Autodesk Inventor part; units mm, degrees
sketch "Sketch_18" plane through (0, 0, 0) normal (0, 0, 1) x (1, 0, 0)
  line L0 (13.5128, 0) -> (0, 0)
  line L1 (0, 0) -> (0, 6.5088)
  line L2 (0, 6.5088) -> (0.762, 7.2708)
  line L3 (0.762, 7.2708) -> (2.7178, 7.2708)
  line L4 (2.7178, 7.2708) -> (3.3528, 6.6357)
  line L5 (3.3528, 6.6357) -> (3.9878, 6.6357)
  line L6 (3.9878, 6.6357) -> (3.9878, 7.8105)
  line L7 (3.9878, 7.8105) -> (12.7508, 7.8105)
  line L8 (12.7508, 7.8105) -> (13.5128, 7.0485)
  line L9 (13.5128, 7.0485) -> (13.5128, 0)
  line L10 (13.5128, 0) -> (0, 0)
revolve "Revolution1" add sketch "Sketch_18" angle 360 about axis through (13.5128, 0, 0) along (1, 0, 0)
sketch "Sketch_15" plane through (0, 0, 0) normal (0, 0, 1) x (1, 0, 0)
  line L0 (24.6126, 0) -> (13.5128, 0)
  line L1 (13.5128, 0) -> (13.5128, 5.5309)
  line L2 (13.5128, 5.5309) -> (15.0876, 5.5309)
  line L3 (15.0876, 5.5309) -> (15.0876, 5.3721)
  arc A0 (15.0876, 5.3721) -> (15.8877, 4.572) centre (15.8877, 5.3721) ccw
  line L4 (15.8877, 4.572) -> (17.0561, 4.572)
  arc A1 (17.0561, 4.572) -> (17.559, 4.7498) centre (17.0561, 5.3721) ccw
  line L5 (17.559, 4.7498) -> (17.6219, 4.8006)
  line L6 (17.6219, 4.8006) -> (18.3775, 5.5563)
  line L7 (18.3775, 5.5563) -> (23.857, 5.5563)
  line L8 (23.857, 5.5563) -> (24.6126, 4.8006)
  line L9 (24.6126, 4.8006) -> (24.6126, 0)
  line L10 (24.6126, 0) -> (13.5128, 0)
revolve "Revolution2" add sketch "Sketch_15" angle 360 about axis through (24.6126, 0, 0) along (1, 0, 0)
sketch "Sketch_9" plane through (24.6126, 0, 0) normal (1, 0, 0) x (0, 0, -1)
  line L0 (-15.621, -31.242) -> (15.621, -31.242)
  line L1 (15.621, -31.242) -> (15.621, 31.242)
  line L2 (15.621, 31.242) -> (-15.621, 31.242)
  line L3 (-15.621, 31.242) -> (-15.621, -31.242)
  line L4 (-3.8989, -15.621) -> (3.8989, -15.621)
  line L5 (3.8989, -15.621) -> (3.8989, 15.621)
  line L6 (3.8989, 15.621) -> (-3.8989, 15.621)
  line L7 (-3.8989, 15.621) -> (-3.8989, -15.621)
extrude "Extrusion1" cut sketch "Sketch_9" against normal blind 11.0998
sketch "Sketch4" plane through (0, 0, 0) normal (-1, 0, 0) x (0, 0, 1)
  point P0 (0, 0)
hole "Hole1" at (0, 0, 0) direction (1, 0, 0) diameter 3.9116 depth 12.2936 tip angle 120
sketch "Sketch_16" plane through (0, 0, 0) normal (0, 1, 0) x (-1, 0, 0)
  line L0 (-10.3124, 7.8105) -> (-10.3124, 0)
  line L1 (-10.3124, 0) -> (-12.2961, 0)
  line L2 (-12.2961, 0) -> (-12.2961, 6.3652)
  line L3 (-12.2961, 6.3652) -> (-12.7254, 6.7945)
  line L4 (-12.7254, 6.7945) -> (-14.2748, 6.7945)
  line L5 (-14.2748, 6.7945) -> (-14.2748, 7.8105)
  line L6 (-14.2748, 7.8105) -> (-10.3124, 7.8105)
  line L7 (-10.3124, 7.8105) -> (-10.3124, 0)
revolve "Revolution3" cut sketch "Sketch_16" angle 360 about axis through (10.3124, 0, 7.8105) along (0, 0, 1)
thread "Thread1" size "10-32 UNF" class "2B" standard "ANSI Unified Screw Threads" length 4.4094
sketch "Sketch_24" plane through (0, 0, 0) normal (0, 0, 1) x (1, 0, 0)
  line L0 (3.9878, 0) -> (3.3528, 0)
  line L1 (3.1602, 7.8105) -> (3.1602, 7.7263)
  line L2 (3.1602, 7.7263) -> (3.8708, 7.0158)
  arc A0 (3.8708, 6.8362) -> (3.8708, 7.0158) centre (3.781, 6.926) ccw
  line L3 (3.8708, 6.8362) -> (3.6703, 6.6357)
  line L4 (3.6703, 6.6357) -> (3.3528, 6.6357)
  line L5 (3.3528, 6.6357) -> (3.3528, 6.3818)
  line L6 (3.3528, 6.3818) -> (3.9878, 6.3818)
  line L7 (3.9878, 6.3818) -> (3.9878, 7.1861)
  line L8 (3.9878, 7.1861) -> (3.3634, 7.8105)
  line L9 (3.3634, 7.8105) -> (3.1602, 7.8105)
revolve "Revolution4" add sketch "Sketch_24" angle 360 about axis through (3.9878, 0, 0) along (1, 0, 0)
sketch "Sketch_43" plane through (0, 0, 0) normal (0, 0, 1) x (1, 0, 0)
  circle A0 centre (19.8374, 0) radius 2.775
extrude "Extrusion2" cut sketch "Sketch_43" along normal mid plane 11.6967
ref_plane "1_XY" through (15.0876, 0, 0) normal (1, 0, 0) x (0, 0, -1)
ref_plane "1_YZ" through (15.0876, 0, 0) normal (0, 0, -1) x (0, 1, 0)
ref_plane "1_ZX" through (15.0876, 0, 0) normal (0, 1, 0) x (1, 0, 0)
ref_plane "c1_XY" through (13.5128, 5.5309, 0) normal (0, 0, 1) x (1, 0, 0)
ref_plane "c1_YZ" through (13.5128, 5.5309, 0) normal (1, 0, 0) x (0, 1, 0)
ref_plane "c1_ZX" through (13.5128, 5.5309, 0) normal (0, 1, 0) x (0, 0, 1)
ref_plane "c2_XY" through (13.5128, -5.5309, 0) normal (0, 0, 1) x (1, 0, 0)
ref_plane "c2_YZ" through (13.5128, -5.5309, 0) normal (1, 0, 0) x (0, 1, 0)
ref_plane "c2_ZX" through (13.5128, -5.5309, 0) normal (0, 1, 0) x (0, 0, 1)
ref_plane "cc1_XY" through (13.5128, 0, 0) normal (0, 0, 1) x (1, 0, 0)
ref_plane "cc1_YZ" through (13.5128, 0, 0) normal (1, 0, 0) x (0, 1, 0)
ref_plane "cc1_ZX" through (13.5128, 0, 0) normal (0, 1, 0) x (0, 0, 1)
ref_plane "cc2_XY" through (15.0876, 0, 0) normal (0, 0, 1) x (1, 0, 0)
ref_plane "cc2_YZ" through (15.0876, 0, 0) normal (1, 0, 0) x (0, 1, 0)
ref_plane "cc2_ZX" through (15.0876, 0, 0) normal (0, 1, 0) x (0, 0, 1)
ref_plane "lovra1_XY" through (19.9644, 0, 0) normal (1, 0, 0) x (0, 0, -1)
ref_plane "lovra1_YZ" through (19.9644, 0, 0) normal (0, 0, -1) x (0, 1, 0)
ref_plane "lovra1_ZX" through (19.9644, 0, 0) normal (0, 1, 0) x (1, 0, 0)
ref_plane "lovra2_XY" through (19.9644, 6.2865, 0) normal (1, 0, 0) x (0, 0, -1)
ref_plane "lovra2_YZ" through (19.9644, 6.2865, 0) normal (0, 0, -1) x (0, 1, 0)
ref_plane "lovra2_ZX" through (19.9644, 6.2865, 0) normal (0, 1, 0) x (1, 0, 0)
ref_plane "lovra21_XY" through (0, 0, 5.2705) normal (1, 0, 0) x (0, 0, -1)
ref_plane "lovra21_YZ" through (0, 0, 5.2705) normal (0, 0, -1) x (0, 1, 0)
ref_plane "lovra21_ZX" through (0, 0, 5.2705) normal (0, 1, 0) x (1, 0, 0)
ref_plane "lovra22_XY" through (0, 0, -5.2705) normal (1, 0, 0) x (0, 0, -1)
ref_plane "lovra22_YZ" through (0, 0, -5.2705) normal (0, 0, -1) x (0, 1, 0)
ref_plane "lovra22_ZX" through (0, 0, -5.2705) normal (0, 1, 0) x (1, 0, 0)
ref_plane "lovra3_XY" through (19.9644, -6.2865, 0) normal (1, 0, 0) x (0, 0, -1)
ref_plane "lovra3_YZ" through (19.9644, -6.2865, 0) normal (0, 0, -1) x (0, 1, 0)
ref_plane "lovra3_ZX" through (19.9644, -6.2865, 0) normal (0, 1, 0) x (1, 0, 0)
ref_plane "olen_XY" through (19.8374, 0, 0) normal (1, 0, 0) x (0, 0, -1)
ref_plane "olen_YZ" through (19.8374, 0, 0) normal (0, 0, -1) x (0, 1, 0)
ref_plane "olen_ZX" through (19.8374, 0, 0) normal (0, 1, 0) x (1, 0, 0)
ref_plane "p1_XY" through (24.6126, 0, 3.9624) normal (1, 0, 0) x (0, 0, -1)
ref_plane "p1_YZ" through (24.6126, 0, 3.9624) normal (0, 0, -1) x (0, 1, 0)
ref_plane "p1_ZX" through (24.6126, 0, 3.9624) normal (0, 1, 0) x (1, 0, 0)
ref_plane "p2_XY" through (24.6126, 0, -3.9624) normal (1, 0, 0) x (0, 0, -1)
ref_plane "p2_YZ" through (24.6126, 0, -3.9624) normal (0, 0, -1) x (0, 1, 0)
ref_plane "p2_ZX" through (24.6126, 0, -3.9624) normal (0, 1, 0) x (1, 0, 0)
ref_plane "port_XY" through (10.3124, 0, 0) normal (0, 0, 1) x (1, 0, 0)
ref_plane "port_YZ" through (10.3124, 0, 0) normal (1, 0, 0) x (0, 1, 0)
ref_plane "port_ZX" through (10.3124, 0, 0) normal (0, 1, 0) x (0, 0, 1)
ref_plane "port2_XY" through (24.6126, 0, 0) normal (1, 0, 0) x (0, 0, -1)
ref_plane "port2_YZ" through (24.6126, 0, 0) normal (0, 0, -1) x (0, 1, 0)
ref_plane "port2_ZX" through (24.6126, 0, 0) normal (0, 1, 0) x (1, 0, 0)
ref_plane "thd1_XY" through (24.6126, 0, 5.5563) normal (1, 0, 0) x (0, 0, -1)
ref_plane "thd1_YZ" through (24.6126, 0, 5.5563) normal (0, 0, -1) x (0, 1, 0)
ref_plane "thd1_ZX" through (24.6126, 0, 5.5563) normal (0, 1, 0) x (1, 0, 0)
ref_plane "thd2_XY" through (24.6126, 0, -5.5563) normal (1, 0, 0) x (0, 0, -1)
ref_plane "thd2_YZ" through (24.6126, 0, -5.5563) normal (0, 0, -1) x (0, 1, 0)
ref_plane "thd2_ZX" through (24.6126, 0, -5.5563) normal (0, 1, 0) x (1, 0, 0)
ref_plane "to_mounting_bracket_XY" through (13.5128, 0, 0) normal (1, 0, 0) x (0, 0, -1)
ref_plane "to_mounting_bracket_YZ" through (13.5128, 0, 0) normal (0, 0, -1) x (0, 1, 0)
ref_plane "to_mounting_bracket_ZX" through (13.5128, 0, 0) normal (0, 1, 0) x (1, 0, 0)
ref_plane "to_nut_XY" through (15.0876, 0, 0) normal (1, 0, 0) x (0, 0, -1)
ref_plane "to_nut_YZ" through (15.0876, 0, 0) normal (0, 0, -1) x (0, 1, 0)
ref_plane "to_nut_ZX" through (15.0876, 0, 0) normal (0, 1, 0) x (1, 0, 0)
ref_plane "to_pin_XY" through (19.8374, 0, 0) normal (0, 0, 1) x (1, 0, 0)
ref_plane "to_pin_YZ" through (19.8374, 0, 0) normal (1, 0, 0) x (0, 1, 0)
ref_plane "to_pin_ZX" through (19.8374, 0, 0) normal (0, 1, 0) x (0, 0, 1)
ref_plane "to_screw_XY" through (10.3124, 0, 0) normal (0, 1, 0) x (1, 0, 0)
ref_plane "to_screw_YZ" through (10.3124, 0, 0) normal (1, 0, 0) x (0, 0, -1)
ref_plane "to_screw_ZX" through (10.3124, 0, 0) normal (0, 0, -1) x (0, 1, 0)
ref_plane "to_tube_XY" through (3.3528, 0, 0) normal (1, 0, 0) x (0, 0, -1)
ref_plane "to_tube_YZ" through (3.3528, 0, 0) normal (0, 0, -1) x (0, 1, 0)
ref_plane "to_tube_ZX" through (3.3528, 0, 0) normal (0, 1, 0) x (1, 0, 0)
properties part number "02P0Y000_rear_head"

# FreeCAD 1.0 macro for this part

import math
import FreeCAD as App
import Part
import Sketcher

V = App.Vector
Q = App.Units.Quantity


def add_polygon(sketch, points):
    """Adds a closed chain of lines whose ends are joined by coincident constraints."""
    first, n = sketch.GeometryCount, len(points)
    for a, b in zip(points, points[1:] + points[:1]):
        sketch.addGeometry(Part.LineSegment(App.Vector(*a, 0), App.Vector(*b, 0)), False)
    for i in range(n):
        sketch.addConstraint(Sketcher.Constraint("Coincident", first + i, 2, first + (i + 1) % n, 1))

doc = App.newDocument("Part")
body = doc.addObject("PartDesign::Body", "Body")

sketch1 = body.newObject("Sketcher::SketchObject", "Sketch")
sketch1.AttachmentSupport = (doc.getObject("XY_Plane"), [""])
sketch1.MapMode = "FlatFace"
add_polygon(sketch1, [(0, 0), (13.5128, 0), (13.5128, 7.0485), (12.7508, 7.8105), (3.9878, 7.8105), (3.9878, 6.6357), (3.3528, 6.6357), (2.7178, 7.2708), (0.762, 7.2708), (0, 6.5088)])
sketch1.addConstraint([
    Sketcher.Constraint("Horizontal", 0),
    Sketcher.Constraint("Vertical", 1),
    Sketcher.Constraint("Horizontal", 3),
    Sketcher.Constraint("Vertical", 4),
    Sketcher.Constraint("Horizontal", 5),
    Sketcher.Constraint("Horizontal", 7),
    Sketcher.Constraint("Vertical", 9),
    Sketcher.Constraint("Coincident", 9, 2, -1, 1),
    Sketcher.Constraint("Parallel", 2, 6),
    Sketcher.Constraint("Perpendicular", 6, 8),
    Sketcher.Constraint("Equal", 2, 8),
    Sketcher.Constraint("Angle", 2, Q("135 deg")),
    Sketcher.Constraint("DistanceX", 5, 2, 1, 2, Q("0.4 in")),
    Sketcher.Constraint("DistanceX", 0, 1, 0, 2, Q("0.532 in")),
    Sketcher.Constraint("DistanceX", 3, 2, 3, 1, Q("0.345 in")),
    Sketcher.Constraint("DistanceX", 5, 2, 5, 1, Q("0.025 in")),
    Sketcher.Constraint("DistanceX", 7, 2, 7, 1, Q("0.077 in")),
    Sketcher.Constraint("DistanceY", 1, 1, 1, 2, Q("0.2775 in")),
    Sketcher.Constraint("DistanceY", 4, 2, 4, 1, Q("1.1748 mm")),
])
revolution = body.newObject("PartDesign::Revolution", "Revolution")
revolution.Profile = sketch1
revolution.ReferenceAxis = (sketch1, ["H_Axis"])
revolution.Angle = 360

sketch2 = body.newObject("Sketcher::SketchObject", "Sketch001")
sketch2.AttachmentSupport = (doc.getObject("XY_Plane"), [""])
sketch2.MapMode = "FlatFace"
sketch2.addGeometry([
    Part.LineSegment(V(13.5128, 0, 0), V(24.6126, 0, 0)),
    Part.LineSegment(V(24.6126, 0, 0), V(24.6126, 4.8006, 0)),
    Part.LineSegment(V(24.6126, 4.8006, 0), V(23.857, 5.5563, 0)),
    Part.LineSegment(V(23.857, 5.5563, 0), V(18.3775, 5.5563, 0)),
    Part.LineSegment(V(18.3775, 5.5563, 0), V(17.6219, 4.8006, 0)),
    Part.LineSegment(V(17.6219, 4.8006, 0), V(17.559, 4.7498, 0)),
    Part.ArcOfCircle(Part.Circle(V(17.0561, 5.3721, 0), V(0, 0, 1), 0.8001), math.radians(-90), math.radians(-51.057244)),
    Part.LineSegment(V(17.0561, 4.572, 0), V(15.8877, 4.572, 0)),
    Part.ArcOfCircle(Part.Circle(V(15.8877, 5.3721, 0), V(0, 0, 1), 0.8001), math.radians(180), math.radians(270)),
    Part.LineSegment(V(15.0876, 5.3721, 0), V(15.0876, 5.5309, 0)),
    Part.LineSegment(V(15.0876, 5.5309, 0), V(13.5128, 5.5309, 0)),
    Part.LineSegment(V(13.5128, 5.5309, 0), V(13.5128, 0, 0)),
], False)
sketch2.addConstraint([
    Sketcher.Constraint("Coincident", 0, 2, 1, 1),
    Sketcher.Constraint("Coincident", 1, 2, 2, 1),
    Sketcher.Constraint("Coincident", 2, 2, 3, 1),
    Sketcher.Constraint("Coincident", 3, 2, 4, 1),
    Sketcher.Constraint("Coincident", 4, 2, 5, 1),
    Sketcher.Constraint("Tangent", 5, 2, 6, 2),
    Sketcher.Constraint("Tangent", 6, 1, 7, 1),
    Sketcher.Constraint("Tangent", 7, 2, 8, 2),
    Sketcher.Constraint("Tangent", 8, 1, 9, 1),
    Sketcher.Constraint("Coincident", 9, 2, 10, 1),
    Sketcher.Constraint("Coincident", 10, 2, 11, 1),
    Sketcher.Constraint("Coincident", 11, 2, 0, 1),
    Sketcher.Constraint("Horizontal", 0),
    Sketcher.Constraint("Vertical", 1),
    Sketcher.Constraint("Horizontal", 3),
    Sketcher.Constraint("Horizontal", 7),
    Sketcher.Constraint("Vertical", 9),
    Sketcher.Constraint("Horizontal", 10),
    Sketcher.Constraint("Vertical", 11),
    Sketcher.Constraint("Equal", 6, 8),
    Sketcher.Constraint("PointOnObject", 0, 2, -1),
    Sketcher.Constraint("Perpendicular", 2, 4),
    Sketcher.Constraint("Horizontal", 1, 2, 4, 2),
    Sketcher.Constraint("Equal", 2, 4),
    Sketcher.Constraint("Radius", 6, Q("0.0315 in")),
    Sketcher.Constraint("DistanceX", 0, 1, 0, 2, Q("0.437 in")),
    Sketcher.Constraint("DistanceX", 7, 2, 7, 1, Q("0.046 in")),
    Sketcher.Constraint("DistanceX", 10, 2, 10, 1, Q("0.062 in")),
    Sketcher.Constraint("DistanceY", 1, 1, 1, 2, Q("0.189 in")),
    Sketcher.Constraint("DistanceY", -1, 1, 6, 1, Q("0.18 in")),
    Sketcher.Constraint("DistanceX", -1, 1, 0, 2, Q("0.969 in")),
    Sketcher.Constraint("DistanceY", -1, 1, 2, 2, Q("0.218752 in")),
    Sketcher.Constraint("DistanceY", -1, 1, 5, 2, Q("0.187 in")),
    Sketcher.Constraint("DistanceY", 9, 1, 9, 2, Q("0.1588 mm")),
])
revolution2 = body.newObject("PartDesign::Revolution", "Revolution001")
revolution2.Profile = sketch2
revolution2.ReferenceAxis = (sketch2, ["H_Axis"])
revolution2.Angle = 360

sketch3 = body.newObject("Sketcher::SketchObject", "Sketch002")
sketch3.AttachmentSupport = (doc.getObject("YZ_Plane"), [""])
sketch3.MapMode = "FlatFace"
sketch3.AttachmentOffset = App.Placement(V(0, 0, 0.969 * 25.4), App.Rotation())
add_polygon(sketch3, [(31.242, 15.621), (-31.242, 15.621), (-31.242, -15.621), (31.242, -15.621)])
add_polygon(sketch3, [(-15.621, -3.8989), (-15.621, 3.8989), (15.621, 3.8989), (15.621, -3.8989)])
sketch3.addConstraint([
    Sketcher.Constraint("Horizontal", 0),
    Sketcher.Constraint("Vertical", 1),
    Sketcher.Constraint("Horizontal", 2),
    Sketcher.Constraint("Vertical", 3),
    Sketcher.Constraint("Vertical", 4),
    Sketcher.Constraint("Horizontal", 5),
    Sketcher.Constraint("Vertical", 6),
    Sketcher.Constraint("Horizontal", 7),
    Sketcher.Constraint("Symmetric", 0, 2, 2, 2, -1, 1),
    Sketcher.Constraint("Symmetric", 4, 2, 6, 2, -1, 1),
    Sketcher.Constraint("Equal", 7, 1),
    Sketcher.Constraint("DistanceX", 0, 2, 0, 1, Q("2.46 in")),
    Sketcher.Constraint("DistanceX", 5, 1, 5, 2, Q("1.23 in")),
    Sketcher.Constraint("DistanceY", 4, 1, 4, 2, Q("0.307 in")),
])
pocket1 = body.newObject("PartDesign::Pocket", "Pocket")
pocket1.Profile = sketch3
pocket1.Length = Q("0.437 in")

sketch4 = body.newObject("Sketcher::SketchObject", "Sketch003")
sketch4.AttachmentSupport = (doc.getObject("YZ_Plane"), [""])
sketch4.MapMode = "FlatFace"
sketch4.addGeometry(Part.Circle(V(0, 0, 0), V(0, 0, 1), 1.9558), False)
sketch4.addConstraint([
    Sketcher.Constraint("Coincident", 0, 3, -1, 1),
    Sketcher.Constraint("Diameter", 0, Q("0.154 in")),
])
doc.recompute()
hole = body.newObject("PartDesign::Hole", "Hole")
hole.Profile = sketch4
hole.ThreadType = "None"
hole.Diameter = Q("0.154 in")
hole.DepthType = "Dimension"
hole.Depth = Q("0.484 in")
hole.DrillPoint = "Angled"
hole.DrillPointAngle = 120
hole.Reversed = True

sketch5 = body.newObject("Sketcher::SketchObject", "Sketch004")
sketch5.AttachmentSupport = (doc.getObject("XZ_Plane"), [""])
sketch5.MapMode = "FlatFace"
add_polygon(sketch5, [(10.3124, 0), (10.3124, 7.8105), (14.2748, 7.8105), (14.2748, 6.7945), (12.7254, 6.7945), (12.2961, 6.3652), (12.2961, 0)])
sketch5.addGeometry(Part.LineSegment(V(10.3124, 0, 0), V(10.3124, 7.8105, 0)), True)
sketch5.addConstraint([
    Sketcher.Constraint("Vertical", 0),
    Sketcher.Constraint("Horizontal", 1),
    Sketcher.Constraint("Vertical", 2),
    Sketcher.Constraint("Horizontal", 3),
    Sketcher.Constraint("Vertical", 5),
    Sketcher.Constraint("Horizontal", 6),
    Sketcher.Constraint("Vertical", 7),
    Sketcher.Constraint("Coincident", 7, 1, 6, 2),
    Sketcher.Constraint("PointOnObject", 5, 2, -1),
    Sketcher.Constraint("Horizontal", 1, 2, 7, 2),
    Sketcher.Constraint("Angle", 4, Q("-135 deg")),
    Sketcher.Constraint("DistanceY", 2, 2, 2, 1, Q("0.04 in")),
    Sketcher.Constraint("DistanceX", 1, 1, 1, 2, Q("0.156 in")),
    Sketcher.Constraint("DistanceX", 3, 2, 3, 1, Q("0.061 in")),
    Sketcher.Constraint("DistanceX", 6, 2, 6, 1, Q("0.0781 in")),
    Sketcher.Constraint("DistanceY", 0, 1, 0, 2, Q("0.3075 in")),
    Sketcher.Constraint("DistanceX", -1, 1, 0, 2, Q("0.406 in")),
])
groove = body.newObject("PartDesign::Groove", "Groove")
groove.Profile = sketch5
groove.ReferenceAxis = (sketch5, ["Axis0"])
groove.Angle = 360

sketch6 = body.newObject("Sketcher::SketchObject", "Sketch005")
sketch6.AttachmentSupport = (doc.getObject("XY_Plane"), [""])
sketch6.MapMode = "FlatFace"
sketch6.addGeometry([
    Part.LineSegment(V(3.3634, 7.8105, 0), V(3.1602, 7.8105, 0)),
    Part.LineSegment(V(3.1602, 7.8105, 0), V(3.1602, 7.7263, 0)),
    Part.LineSegment(V(3.1602, 7.7263, 0), V(3.8708, 7.0158, 0)),
    Part.ArcOfCircle(Part.Circle(V(3.781, 6.926, 0), V(0, 0, 1), 0.126996), math.radians(-45), math.radians(45)),
    Part.LineSegment(V(3.8708, 6.8362, 0), V(3.6703, 6.6357, 0)),
    Part.LineSegment(V(3.6703, 6.6357, 0), V(3.3528, 6.6357, 0)),
    Part.LineSegment(V(3.3528, 6.6357, 0), V(3.3528, 6.3818, 0)),
    Part.LineSegment(V(3.3528, 6.3818, 0), V(3.9878, 6.3818, 0)),
    Part.LineSegment(V(3.9878, 6.3818, 0), V(3.9878, 7.1861, 0)),
    Part.LineSegment(V(3.9878, 7.1861, 0), V(3.3634, 7.8105, 0)),
], False)
sketch6.addConstraint([
    Sketcher.Constraint("Coincident", 0, 2, 1, 1),
    Sketcher.Constraint("Coincident", 1, 2, 2, 1),
    Sketcher.Constraint("Tangent", 2, 2, 3, 2),
    Sketcher.Constraint("Tangent", 3, 1, 4, 1),
    Sketcher.Constraint("Coincident", 4, 2, 5, 1),
    Sketcher.Constraint("Coincident", 5, 2, 6, 1),
    Sketcher.Constraint("Coincident", 6, 2, 7, 1),
    Sketcher.Constraint("Coincident", 7, 2, 8, 1),
    Sketcher.Constraint("Coincident", 8, 2, 9, 1),
    Sketcher.Constraint("Coincident", 9, 2, 0, 1),
    Sketcher.Constraint("Horizontal", 0),
    Sketcher.Constraint("Vertical", 1),
    Sketcher.Constraint("Horizontal", 5),
    Sketcher.Constraint("Vertical", 6),
    Sketcher.Constraint("Horizontal", 7),
    Sketcher.Constraint("Vertical", 8),
    Sketcher.Constraint("Perpendicular", 2, 4),
    Sketcher.Constraint("Perpendicular", 4, 9),
    Sketcher.Constraint("Vertical", 2, 2, 3, 1),
    Sketcher.Constraint("Radius", 3, Q("0.005 in")),
    Sketcher.Constraint("DistanceY", 6, 2, 6, 1, Q("0.01 in")),
    Sketcher.Constraint("DistanceX", 0, 2, 0, 1, Q("0.008 in")),
    Sketcher.Constraint("DistanceX", 7, 1, 7, 2, Q("0.025 in")),
    Sketcher.Constraint("DistanceX", 5, 2, 5, 1, Q("0.0125 in")),
    Sketcher.Constraint("DistanceX", -1, 1, 5, 2, Q("0.132 in")),
    Sketcher.Constraint("DistanceY", 1, 2, 1, 1, Q("0.0842 mm")),
    Sketcher.Constraint("DistanceY", 8, 1, 8, 2, Q("0.8043 mm")),
    Sketcher.Constraint("DistanceY", -1, 1, 0, 2, Q("0.3075 in")),
    Sketcher.Constraint("DistanceY", 3, 3, 1, 2, Q("0.0315 in")),
])
revolution3 = body.newObject("PartDesign::Revolution", "Revolution002")
revolution3.Profile = sketch6
revolution3.ReferenceAxis = (sketch6, ["H_Axis"])
revolution3.Angle = 360

sketch7 = body.newObject("Sketcher::SketchObject", "Sketch006")
sketch7.AttachmentSupport = (doc.getObject("XY_Plane"), [""])
sketch7.MapMode = "FlatFace"
sketch7.addGeometry(Part.Circle(V(19.8374, 0, 0), V(0, 0, 1), 2.775), False)
sketch7.addConstraint([
    Sketcher.Constraint("PointOnObject", 0, 3, -1),
    Sketcher.Constraint("Diameter", 0, Q("0.2185 in")),
    Sketcher.Constraint("DistanceX", -1, 1, 0, 3, Q("0.781 in")),
])
pocket2 = body.newObject("PartDesign::Pocket", "Pocket001")
pocket2.Profile = sketch7
pocket2.Length = Q("0.4605 in")
pocket2.Midplane = True

doc.recompute()
